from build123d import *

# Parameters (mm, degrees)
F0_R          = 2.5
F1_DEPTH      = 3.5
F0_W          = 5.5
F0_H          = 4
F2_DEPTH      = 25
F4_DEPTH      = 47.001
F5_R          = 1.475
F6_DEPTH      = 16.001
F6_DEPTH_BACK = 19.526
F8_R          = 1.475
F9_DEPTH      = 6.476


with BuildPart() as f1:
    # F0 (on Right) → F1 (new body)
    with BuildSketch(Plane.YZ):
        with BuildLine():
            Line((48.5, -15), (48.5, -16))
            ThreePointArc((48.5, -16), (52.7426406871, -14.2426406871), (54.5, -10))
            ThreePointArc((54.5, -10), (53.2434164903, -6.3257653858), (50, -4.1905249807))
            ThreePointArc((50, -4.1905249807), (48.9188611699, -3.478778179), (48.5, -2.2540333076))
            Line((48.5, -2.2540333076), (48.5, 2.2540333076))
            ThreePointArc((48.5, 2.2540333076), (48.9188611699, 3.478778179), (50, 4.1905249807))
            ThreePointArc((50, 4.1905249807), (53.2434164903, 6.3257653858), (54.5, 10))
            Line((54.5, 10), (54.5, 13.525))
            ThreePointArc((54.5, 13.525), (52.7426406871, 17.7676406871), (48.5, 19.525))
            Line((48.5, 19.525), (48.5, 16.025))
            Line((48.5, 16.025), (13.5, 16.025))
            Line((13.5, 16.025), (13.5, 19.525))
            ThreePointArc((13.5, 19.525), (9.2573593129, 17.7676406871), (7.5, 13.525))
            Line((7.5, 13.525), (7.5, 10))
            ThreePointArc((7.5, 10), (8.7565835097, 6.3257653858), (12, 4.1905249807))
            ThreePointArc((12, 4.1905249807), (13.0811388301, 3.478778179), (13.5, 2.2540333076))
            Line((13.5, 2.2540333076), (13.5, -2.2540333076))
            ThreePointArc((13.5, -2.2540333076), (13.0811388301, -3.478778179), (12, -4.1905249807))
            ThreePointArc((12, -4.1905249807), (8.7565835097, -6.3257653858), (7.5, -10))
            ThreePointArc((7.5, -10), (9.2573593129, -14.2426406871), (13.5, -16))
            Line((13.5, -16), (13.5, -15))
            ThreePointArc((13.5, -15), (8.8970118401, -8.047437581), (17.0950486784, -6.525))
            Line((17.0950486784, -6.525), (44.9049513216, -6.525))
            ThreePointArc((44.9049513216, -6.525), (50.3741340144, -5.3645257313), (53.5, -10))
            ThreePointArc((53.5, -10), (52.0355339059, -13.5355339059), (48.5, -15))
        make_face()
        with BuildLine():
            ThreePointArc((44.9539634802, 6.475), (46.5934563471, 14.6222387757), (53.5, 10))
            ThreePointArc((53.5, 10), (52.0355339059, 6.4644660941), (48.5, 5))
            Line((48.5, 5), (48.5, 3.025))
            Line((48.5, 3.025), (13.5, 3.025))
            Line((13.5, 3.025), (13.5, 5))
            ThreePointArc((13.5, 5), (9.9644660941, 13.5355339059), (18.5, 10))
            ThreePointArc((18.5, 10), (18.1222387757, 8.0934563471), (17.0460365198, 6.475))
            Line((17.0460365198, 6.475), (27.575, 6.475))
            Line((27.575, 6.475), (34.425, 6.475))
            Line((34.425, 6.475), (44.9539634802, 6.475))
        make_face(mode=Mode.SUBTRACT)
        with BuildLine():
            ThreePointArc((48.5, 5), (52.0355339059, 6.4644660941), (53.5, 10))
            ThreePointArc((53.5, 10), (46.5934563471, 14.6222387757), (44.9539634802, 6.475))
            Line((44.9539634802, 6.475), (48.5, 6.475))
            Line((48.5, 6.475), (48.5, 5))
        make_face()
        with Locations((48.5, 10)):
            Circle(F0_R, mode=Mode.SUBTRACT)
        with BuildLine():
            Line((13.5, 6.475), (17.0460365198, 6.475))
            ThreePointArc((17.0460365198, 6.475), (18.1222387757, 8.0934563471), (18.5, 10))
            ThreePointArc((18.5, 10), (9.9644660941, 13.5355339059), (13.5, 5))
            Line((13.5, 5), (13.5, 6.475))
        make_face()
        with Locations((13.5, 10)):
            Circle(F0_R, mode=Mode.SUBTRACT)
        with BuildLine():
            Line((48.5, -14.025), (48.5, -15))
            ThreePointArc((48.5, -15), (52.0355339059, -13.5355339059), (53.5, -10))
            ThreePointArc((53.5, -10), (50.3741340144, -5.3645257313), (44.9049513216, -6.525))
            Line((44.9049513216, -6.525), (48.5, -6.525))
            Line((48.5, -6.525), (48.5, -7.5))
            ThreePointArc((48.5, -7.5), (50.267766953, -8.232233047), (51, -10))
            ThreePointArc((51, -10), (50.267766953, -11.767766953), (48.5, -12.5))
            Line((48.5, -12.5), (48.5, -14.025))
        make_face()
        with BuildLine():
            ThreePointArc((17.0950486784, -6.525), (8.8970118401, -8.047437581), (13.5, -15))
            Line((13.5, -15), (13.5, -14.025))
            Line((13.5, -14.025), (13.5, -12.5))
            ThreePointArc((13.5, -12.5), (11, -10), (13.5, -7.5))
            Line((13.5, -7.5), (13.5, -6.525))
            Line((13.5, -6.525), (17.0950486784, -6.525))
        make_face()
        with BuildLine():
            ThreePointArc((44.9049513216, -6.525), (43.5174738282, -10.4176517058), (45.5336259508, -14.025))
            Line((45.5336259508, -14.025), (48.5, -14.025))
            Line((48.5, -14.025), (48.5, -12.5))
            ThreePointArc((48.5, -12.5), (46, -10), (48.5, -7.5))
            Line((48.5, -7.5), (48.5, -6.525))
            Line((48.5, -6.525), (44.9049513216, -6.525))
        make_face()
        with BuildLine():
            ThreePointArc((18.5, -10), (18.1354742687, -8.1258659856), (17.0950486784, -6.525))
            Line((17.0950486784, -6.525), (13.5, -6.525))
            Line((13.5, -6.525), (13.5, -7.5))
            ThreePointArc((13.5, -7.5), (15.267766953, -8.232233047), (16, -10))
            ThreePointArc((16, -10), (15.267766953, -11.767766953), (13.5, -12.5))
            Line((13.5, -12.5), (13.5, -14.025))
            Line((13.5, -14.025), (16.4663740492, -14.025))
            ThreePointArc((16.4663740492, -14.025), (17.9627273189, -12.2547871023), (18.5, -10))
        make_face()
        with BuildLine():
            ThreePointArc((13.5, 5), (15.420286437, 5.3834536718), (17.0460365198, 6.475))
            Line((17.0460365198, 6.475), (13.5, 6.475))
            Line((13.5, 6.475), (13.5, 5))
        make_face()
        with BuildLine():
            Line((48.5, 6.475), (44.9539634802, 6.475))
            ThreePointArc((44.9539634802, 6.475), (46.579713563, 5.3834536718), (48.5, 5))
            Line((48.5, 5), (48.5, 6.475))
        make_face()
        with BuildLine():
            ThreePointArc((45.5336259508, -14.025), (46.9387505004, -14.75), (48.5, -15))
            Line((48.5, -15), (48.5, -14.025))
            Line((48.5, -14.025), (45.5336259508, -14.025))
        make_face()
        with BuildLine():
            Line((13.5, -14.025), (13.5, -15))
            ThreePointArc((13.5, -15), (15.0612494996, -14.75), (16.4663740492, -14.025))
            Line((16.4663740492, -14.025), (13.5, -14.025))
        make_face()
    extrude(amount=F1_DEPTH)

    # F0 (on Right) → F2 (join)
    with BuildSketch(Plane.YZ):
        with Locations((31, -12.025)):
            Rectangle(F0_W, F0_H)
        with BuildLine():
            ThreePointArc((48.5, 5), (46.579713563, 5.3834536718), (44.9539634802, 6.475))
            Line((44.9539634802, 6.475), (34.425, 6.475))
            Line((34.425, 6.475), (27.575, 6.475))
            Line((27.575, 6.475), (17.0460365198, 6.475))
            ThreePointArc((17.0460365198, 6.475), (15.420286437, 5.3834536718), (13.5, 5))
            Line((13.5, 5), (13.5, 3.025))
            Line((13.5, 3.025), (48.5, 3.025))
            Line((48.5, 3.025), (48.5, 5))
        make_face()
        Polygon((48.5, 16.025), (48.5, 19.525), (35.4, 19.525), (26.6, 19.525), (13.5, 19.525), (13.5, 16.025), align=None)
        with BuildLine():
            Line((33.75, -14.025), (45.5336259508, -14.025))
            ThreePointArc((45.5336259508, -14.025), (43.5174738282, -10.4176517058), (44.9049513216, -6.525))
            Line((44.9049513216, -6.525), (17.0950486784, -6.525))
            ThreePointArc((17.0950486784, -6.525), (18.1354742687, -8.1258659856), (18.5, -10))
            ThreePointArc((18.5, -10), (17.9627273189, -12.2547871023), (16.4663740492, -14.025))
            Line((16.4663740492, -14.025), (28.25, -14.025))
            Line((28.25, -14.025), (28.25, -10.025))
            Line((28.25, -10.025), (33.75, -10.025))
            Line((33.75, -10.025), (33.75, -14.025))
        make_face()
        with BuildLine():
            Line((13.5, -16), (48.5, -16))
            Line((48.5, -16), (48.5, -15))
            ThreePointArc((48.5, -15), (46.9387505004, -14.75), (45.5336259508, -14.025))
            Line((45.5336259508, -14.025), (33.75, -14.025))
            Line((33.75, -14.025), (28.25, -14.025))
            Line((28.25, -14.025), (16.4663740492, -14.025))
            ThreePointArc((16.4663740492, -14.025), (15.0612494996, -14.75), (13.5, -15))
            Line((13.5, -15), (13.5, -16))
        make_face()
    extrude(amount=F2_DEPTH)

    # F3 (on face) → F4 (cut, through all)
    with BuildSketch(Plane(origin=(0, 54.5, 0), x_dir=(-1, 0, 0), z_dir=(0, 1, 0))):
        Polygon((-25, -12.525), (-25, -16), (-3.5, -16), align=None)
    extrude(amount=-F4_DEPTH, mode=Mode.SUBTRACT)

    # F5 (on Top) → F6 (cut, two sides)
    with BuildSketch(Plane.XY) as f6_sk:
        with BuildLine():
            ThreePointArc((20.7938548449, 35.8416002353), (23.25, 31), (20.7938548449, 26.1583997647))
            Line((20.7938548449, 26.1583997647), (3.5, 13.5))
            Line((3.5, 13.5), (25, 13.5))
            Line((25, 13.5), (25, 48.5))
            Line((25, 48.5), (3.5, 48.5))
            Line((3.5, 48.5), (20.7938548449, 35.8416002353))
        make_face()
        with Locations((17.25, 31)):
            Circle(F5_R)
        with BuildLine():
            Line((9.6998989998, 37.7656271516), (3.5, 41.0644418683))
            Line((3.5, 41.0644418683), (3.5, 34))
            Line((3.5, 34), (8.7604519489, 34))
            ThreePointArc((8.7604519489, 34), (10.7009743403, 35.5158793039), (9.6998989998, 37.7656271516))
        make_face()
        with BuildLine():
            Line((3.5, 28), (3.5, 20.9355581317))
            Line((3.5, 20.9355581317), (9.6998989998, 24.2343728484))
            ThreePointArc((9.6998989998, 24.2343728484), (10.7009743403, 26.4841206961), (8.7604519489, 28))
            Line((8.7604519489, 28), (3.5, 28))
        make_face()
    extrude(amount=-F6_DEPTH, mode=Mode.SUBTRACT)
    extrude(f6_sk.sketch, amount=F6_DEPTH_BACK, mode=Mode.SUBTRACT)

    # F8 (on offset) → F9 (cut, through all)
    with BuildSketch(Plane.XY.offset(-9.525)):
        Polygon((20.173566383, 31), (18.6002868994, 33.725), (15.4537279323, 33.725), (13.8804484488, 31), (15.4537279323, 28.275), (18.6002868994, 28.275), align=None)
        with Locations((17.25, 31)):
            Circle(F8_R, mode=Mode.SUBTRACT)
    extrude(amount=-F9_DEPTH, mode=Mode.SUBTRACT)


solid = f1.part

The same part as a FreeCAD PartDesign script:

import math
import FreeCAD as App
import Part
import Sketcher
Q = App.Units.Quantity


def add_polygon(sketch, points):
    """Adds a closed chain of lines whose ends are joined by coincident constraints."""
    first, n = sketch.GeometryCount, len(points)
    for a, b in zip(points, points[1:] + points[:1]):
        sketch.addGeometry(Part.LineSegment(App.Vector(*a, 0), App.Vector(*b, 0)), False)
    for i in range(n):
        sketch.addConstraint(Sketcher.Constraint("Coincident", first + i, 2, first + (i + 1) % n, 1))

doc = App.newDocument("Part")
params = doc.addObject("Spreadsheet::Sheet", "Params")
for row, (alias, value) in enumerate([
    ("sketch1_diameter", "5 mm"),
    ("sketch1_radius", "6 mm"),
    ("sketch1_radius2", "2 mm"),
    ("sketch1_radius3", "5 mm"),
    ("sketch1_width", "35 mm"),
    ("pad1_length", "3.5 mm"),
    ("sketch2_radius", "5 mm"),
    ("sketch2_width", "35 mm"),
    ("sketch2_height", "1 mm"),
    ("sketch2_height2", "3.5 mm"),
    ("pad2_length", "25 mm"),
    ("sketch3_width", "21.5 mm"),
    ("sketch4_radius", "6 mm"),
    ("sketch4_radius2", "2 mm"),
    ("sketch4_diameter", "2.95 mm"),
    ("sketch4_height", "35 mm"),
    ("sketch4_width", "21.5 mm"),
    ("sketch5_diameter", "2.95 mm"),
], start=1):
    params.set(f"A{row}", alias)
    params.set(f"B{row}", "=" + value)
    params.setAlias(f"B{row}", alias)

body = doc.addObject("PartDesign::Body", "Body")

# Sketch on YZ plane
sketch1 = body.newObject("Sketcher::SketchObject", "Sketch")
sketch1.AttachmentSupport = (doc.getObject("YZ_Plane"), [""])
sketch1.MapMode = "FlatFace"
sketch1.addGeometry(Part.LineSegment(App.Vector(48.5, -15, 0), App.Vector(48.5, -16, 0)), False)
sketch1.addGeometry(Part.ArcOfCircle(Part.Circle(App.Vector(48.5, -10, 0), App.Vector(0, 0, 1), 6), math.radians(-90), math.radians(0)), False)
sketch1.addGeometry(Part.ArcOfCircle(Part.Circle(App.Vector(48.5, -10, 0), App.Vector(0, 0, 1), 6), math.radians(0), math.radians(75.522488)), False)
sketch1.addGeometry(Part.ArcOfCircle(Part.Circle(App.Vector(50.5, -2.254033, 0), App.Vector(0, 0, 1), 2), math.radians(180), math.radians(255.522488)), False)
sketch1.addGeometry(Part.LineSegment(App.Vector(48.5, -2.254033, 0), App.Vector(48.5, 2.254033, 0)), False)
sketch1.addGeometry(Part.ArcOfCircle(Part.Circle(App.Vector(50.5, 2.254033, 0), App.Vector(0, 0, 1), 2), math.radians(104.477512), math.radians(180)), False)
sketch1.addGeometry(Part.ArcOfCircle(Part.Circle(App.Vector(48.5, 10, 0), App.Vector(0, 0, 1), 6), math.radians(-75.522488), math.radians(0)), False)
sketch1.addGeometry(Part.LineSegment(App.Vector(54.5, 10, 0), App.Vector(54.5, 13.525, 0)), False)
sketch1.addGeometry(Part.ArcOfCircle(Part.Circle(App.Vector(48.5, 13.525, 0), App.Vector(0, 0, 1), 6), math.radians(0), math.radians(90)), False)
sketch1.addGeometry(Part.LineSegment(App.Vector(48.5, 19.525, 0), App.Vector(48.5, 16.025, 0)), False)
sketch1.addGeometry(Part.LineSegment(App.Vector(48.5, 16.025, 0), App.Vector(13.5, 16.025, 0)), False)
sketch1.addGeometry(Part.LineSegment(App.Vector(13.5, 16.025, 0), App.Vector(13.5, 19.525, 0)), False)
sketch1.addGeometry(Part.ArcOfCircle(Part.Circle(App.Vector(13.5, 13.525, 0), App.Vector(0, 0, 1), 6), math.radians(90), math.radians(180)), False)
sketch1.addGeometry(Part.LineSegment(App.Vector(7.5, 13.525, 0), App.Vector(7.5, 10, 0)), False)
sketch1.addGeometry(Part.ArcOfCircle(Part.Circle(App.Vector(13.5, 10, 0), App.Vector(0, 0, 1), 6), math.radians(180), math.radians(255.522488)), False)
sketch1.addGeometry(Part.ArcOfCircle(Part.Circle(App.Vector(11.5, 2.254033, 0), App.Vector(0, 0, 1), 2), math.radians(0), math.radians(75.522488)), False)
sketch1.addGeometry(Part.LineSegment(App.Vector(13.5, 2.254033, 0), App.Vector(13.5, -2.254033, 0)), False)
sketch1.addGeometry(Part.ArcOfCircle(Part.Circle(App.Vector(11.5, -2.254033, 0), App.Vector(0, 0, 1), 2), math.radians(-75.522488), math.radians(0)), False)
sketch1.addGeometry(Part.ArcOfCircle(Part.Circle(App.Vector(13.5, -10, 0), App.Vector(0, 0, 1), 6), math.radians(104.477512), math.radians(180)), False)
sketch1.addGeometry(Part.ArcOfCircle(Part.Circle(App.Vector(13.5, -10, 0), App.Vector(0, 0, 1), 6), math.radians(180), math.radians(270)), False)
sketch1.addGeometry(Part.LineSegment(App.Vector(13.5, -16, 0), App.Vector(13.5, -15, 0)), False)
sketch1.addGeometry(Part.ArcOfCircle(Part.Circle(App.Vector(13.5, -10, 0), App.Vector(0, 0, 1), 5), math.radians(-90), math.radians(-53.610255)), False)
sketch1.addGeometry(Part.ArcOfCircle(Part.Circle(App.Vector(13.5, -10, 0), App.Vector(0, 0, 1), 5), math.radians(-53.610255), math.radians(0)), False)
sketch1.addGeometry(Part.ArcOfCircle(Part.Circle(App.Vector(13.5, -10, 0), App.Vector(0, 0, 1), 5), math.radians(0), math.radians(44.027217)), False)
sketch1.addGeometry(Part.LineSegment(App.Vector(17.095049, -6.525, 0), App.Vector(44.904951, -6.525, 0)), False)
sketch1.addGeometry(Part.ArcOfCircle(Part.Circle(App.Vector(48.5, -10, 0), App.Vector(0, 0, 1), 5), math.radians(135.972783), math.radians(233.610255)), False)
sketch1.addGeometry(Part.ArcOfCircle(Part.Circle(App.Vector(48.5, -10, 0), App.Vector(0, 0, 1), 5), math.radians(-126.389745), math.radians(-90)), False)
sketch1.addGeometry(Part.ArcOfCircle(Part.Circle(App.Vector(13.5, -10, 0), App.Vector(0, 0, 1), 2.5), math.radians(90), math.radians(270)), False)
sketch1.addGeometry(Part.ArcOfCircle(Part.Circle(App.Vector(13.5, -10, 0), App.Vector(0, 0, 1), 2.5), math.radians(0), math.radians(90)), False)
sketch1.addGeometry(Part.ArcOfCircle(Part.Circle(App.Vector(13.5, -10, 0), App.Vector(0, 0, 1), 2.5), math.radians(-90), math.radians(0)), False)
sketch1.addGeometry(Part.ArcOfCircle(Part.Circle(App.Vector(48.5, -10, 0), App.Vector(0, 0, 1), 2.5), math.radians(0), math.radians(90)), False)
sketch1.addGeometry(Part.ArcOfCircle(Part.Circle(App.Vector(48.5, -10, 0), App.Vector(0, 0, 1), 2.5), math.radians(-90), math.radians(0)), False)
sketch1.addGeometry(Part.ArcOfCircle(Part.Circle(App.Vector(48.5, -10, 0), App.Vector(0, 0, 1), 2.5), math.radians(90), math.radians(270)), False)
sketch1.addGeometry(Part.LineSegment(App.Vector(48.5, 5, 0), App.Vector(48.5, 3.025, 0)), False)
sketch1.addGeometry(Part.LineSegment(App.Vector(48.5, 3.025, 0), App.Vector(13.5, 3.025, 0)), False)
sketch1.addGeometry(Part.LineSegment(App.Vector(13.5, 3.025, 0), App.Vector(13.5, 5, 0)), False)
sketch1.addGeometry(Part.ArcOfCircle(Part.Circle(App.Vector(13.5, 10, 0), App.Vector(0, 0, 1), 5), math.radians(-90), math.radians(-44.829544)), False)
sketch1.addGeometry(Part.LineSegment(App.Vector(17.046037, 6.475, 0), App.Vector(44.953963, 6.475, 0)), False)
sketch1.addGeometry(Part.ArcOfCircle(Part.Circle(App.Vector(48.5, 10, 0), App.Vector(0, 0, 1), 5), math.radians(-135.170456), math.radians(-90)), False)
sketch1.addGeometry(Part.Circle(App.Vector(13.5, 10, 0), App.Vector(0, 0, 1), 2.5), False)
sketch1.addGeometry(Part.Circle(App.Vector(48.5, 10, 0), App.Vector(0, 0, 1), 2.5), False)
sketch1.addConstraint(Sketcher.Constraint("Coincident", 0, 2, 1, 1))
sketch1.addConstraint(Sketcher.Constraint("Tangent", 1, 2, 2, 1))
sketch1.addConstraint(Sketcher.Constraint("Tangent", 2, 2, 3, 2))
sketch1.addConstraint(Sketcher.Constraint("Tangent", 3, 1, 4, 1))
sketch1.addConstraint(Sketcher.Constraint("Tangent", 4, 2, 5, 2))
sketch1.addConstraint(Sketcher.Constraint("Tangent", 5, 1, 6, 1))
sketch1.addConstraint(Sketcher.Constraint("Tangent", 6, 2, 7, 1))
sketch1.addConstraint(Sketcher.Constraint("Tangent", 7, 2, 8, 1))
sketch1.addConstraint(Sketcher.Constraint("Coincident", 8, 2, 9, 1))
sketch1.addConstraint(Sketcher.Constraint("Coincident", 9, 2, 10, 1))
sketch1.addConstraint(Sketcher.Constraint("Coincident", 10, 2, 11, 1))
sketch1.addConstraint(Sketcher.Constraint("Coincident", 11, 2, 12, 1))
sketch1.addConstraint(Sketcher.Constraint("Tangent", 12, 2, 13, 1))
sketch1.addConstraint(Sketcher.Constraint("Tangent", 13, 2, 14, 1))
sketch1.addConstraint(Sketcher.Constraint("Tangent", 14, 2, 15, 2))
sketch1.addConstraint(Sketcher.Constraint("Tangent", 15, 1, 16, 1))
sketch1.addConstraint(Sketcher.Constraint("Tangent", 16, 2, 17, 2))
sketch1.addConstraint(Sketcher.Constraint("Tangent", 17, 1, 18, 1))
sketch1.addConstraint(Sketcher.Constraint("Tangent", 18, 2, 19, 1))
sketch1.addConstraint(Sketcher.Constraint("Coincident", 19, 2, 20, 1))
sketch1.addConstraint(Sketcher.Constraint("Coincident", 20, 2, 21, 1))
sketch1.addConstraint(Sketcher.Constraint("Tangent", 21, 2, 22, 1))
sketch1.addConstraint(Sketcher.Constraint("Tangent", 22, 2, 23, 1))
sketch1.addConstraint(Sketcher.Constraint("Coincident", 23, 2, 24, 1))
sketch1.addConstraint(Sketcher.Constraint("Coincident", 24, 2, 25, 1))
sketch1.addConstraint(Sketcher.Constraint("Tangent", 25, 2, 26, 1))
sketch1.addConstraint(Sketcher.Constraint("Coincident", 26, 2, 0, 1))
sketch1.addConstraint(Sketcher.Constraint("Tangent", 27, 1, 28, 2))
sketch1.addConstraint(Sketcher.Constraint("Tangent", 28, 1, 29, 2))
sketch1.addConstraint(Sketcher.Constraint("Tangent", 29, 1, 27, 2))
sketch1.addConstraint(Sketcher.Constraint("Tangent", 30, 1, 31, 2))
sketch1.addConstraint(Sketcher.Constraint("Tangent", 31, 1, 32, 2))
sketch1.addConstraint(Sketcher.Constraint("Tangent", 32, 1, 30, 2))
sketch1.addConstraint(Sketcher.Constraint("Coincident", 33, 2, 34, 1))
sketch1.addConstraint(Sketcher.Constraint("Coincident", 34, 2, 35, 1))
sketch1.addConstraint(Sketcher.Constraint("Coincident", 35, 2, 36, 1))
sketch1.addConstraint(Sketcher.Constraint("Coincident", 36, 2, 37, 1))
sketch1.addConstraint(Sketcher.Constraint("Coincident", 37, 2, 38, 1))
sketch1.addConstraint(Sketcher.Constraint("Coincident", 38, 2, 33, 1))
sketch1.addConstraint(Sketcher.Constraint("Vertical", 0))
sketch1.addConstraint(Sketcher.Constraint("Vertical", 4))
sketch1.addConstraint(Sketcher.Constraint("Vertical", 7))
sketch1.addConstraint(Sketcher.Constraint("Vertical", 9))
sketch1.addConstraint(Sketcher.Constraint("Horizontal", 10))
sketch1.addConstraint(Sketcher.Constraint("Vertical", 11))
sketch1.addConstraint(Sketcher.Constraint("Vertical", 13))
sketch1.addConstraint(Sketcher.Constraint("Vertical", 16))
sketch1.addConstraint(Sketcher.Constraint("Vertical", 20))
sketch1.addConstraint(Sketcher.Constraint("Horizontal", 24))
sketch1.addConstraint(Sketcher.Constraint("Vertical", 33))
sketch1.addConstraint(Sketcher.Constraint("Horizontal", 34))
sketch1.addConstraint(Sketcher.Constraint("Vertical", 35))
sketch1.addConstraint(Sketcher.Constraint("Horizontal", 37))
sketch1.addConstraint(Sketcher.Constraint("Coincident", 21, 3, 18, 3))
sketch1.addConstraint(Sketcher.Constraint("Coincident", 23, 3, 18, 3))
sketch1.addConstraint(Sketcher.Constraint("Coincident", 25, 3, 1, 3))
sketch1.addConstraint(Sketcher.Constraint("Coincident", 27, 3, 18, 3))
sketch1.addConstraint(Sketcher.Constraint("Coincident", 30, 3, 1, 3))
sketch1.addConstraint(Sketcher.Constraint("Coincident", 36, 3, 14, 3))
sketch1.addConstraint(Sketcher.Constraint("Coincident", 38, 3, 6, 3))
sketch1.addConstraint(Sketcher.Constraint("Coincident", 39, 3, 14, 3))
sketch1.addConstraint(Sketcher.Constraint("Coincident", 40, 3, 6, 3))
sketch1.addConstraint(Sketcher.Constraint("Equal", 1, 2))
sketch1.addConstraint(Sketcher.Constraint("Equal", 3, 5))
sketch1.addConstraint(Sketcher.Constraint("Equal", 2, 6))
sketch1.addConstraint(Sketcher.Constraint("Equal", 6, 8))
sketch1.addConstraint(Sketcher.Constraint("Equal", 8, 12))
sketch1.addConstraint(Sketcher.Constraint("Equal", 12, 14))
sketch1.addConstraint(Sketcher.Constraint("Equal", 5, 15))
sketch1.addConstraint(Sketcher.Constraint("Equal", 15, 17))
sketch1.addConstraint(Sketcher.Constraint("Equal", 14, 18))
sketch1.addConstraint(Sketcher.Constraint("Equal", 18, 19))
sketch1.addConstraint(Sketcher.Constraint("Equal", 23, 25))
sketch1.addConstraint(Sketcher.Constraint("Equal", 25, 26))
sketch1.addConstraint(Sketcher.Constraint("Equal", 29, 30))
sketch1.addConstraint(Sketcher.Constraint("Equal", 26, 36))
sketch1.addConstraint(Sketcher.Constraint("Equal", 36, 38))
sketch1.addConstraint(Sketcher.Constraint("Equal", 32, 39))
sketch1.addConstraint(Sketcher.Constraint("Equal", 39, 40))
sketch1.addConstraint(Sketcher.Constraint("Symmetric", 1, 3, 6, 3, -1))
sketch1.addConstraint(Sketcher.Constraint("Symmetric", 14, 3, 18, 3, -1))
sketch1.addConstraint(Sketcher.Constraint("Horizontal", 8, 3, 12, 3))
sketch1.addConstraint(Sketcher.Constraint("Horizontal", 6, 3, 14, 3))
sketch1.addConstraint(Sketcher.Constraint("Horizontal", 5, 3, 15, 3))
sketch1.addConstraint(Sketcher.Constraint("Horizontal", 32, 3, 1, 2))
sketch1.addConstraint(Sketcher.Constraint("Horizontal", 1, 2, 18, 2))
sketch1.addConstraint(Sketcher.Constraint("Horizontal", 18, 2, 22, 2))
sketch1.addConstraint(Sketcher.Constraint("Horizontal", 21, 2, 25, 2))
sketch1.addConstraint(Sketcher.Constraint("Horizontal", 22, 2, 28, 1))
sketch1.addConstraint(Sketcher.Constraint("Horizontal", 28, 1, 30, 1))
sketch1.addConstraint(Sketcher.Constraint("Vertical", 40, 3, 0, 2))
sketch1.addConstraint(Sketcher.Constraint("Vertical", 0, 2, 3, 1))
sketch1.addConstraint(Sketcher.Constraint("Vertical", 4, 2, 8, 2))
sketch1.addConstraint(Sketcher.Constraint("Vertical", 39, 3, 10, 2))
sketch1.addConstraint(Sketcher.Constraint("Vertical", 16, 2, 19, 2))
sketch1.addConstraint(Sketcher.Constraint("Vertical", 20, 2, 27, 1))
sketch1.addConstraint(Sketcher.Constraint("Vertical", 27, 1, 29, 1))
sketch1.addConstraint(Sketcher.Constraint("Vertical", 26, 2, 31, 1))
sketch1.addConstraint(Sketcher.Constraint("Vertical", 31, 1, 32, 1))
sketch1.addConstraint(Sketcher.Constraint("Vertical", 32, 1, 33, 2))
sketch1.addConstraint(Sketcher.Constraint("Vertical", 29, 1, 34, 2))
sketch1.addConstraint(Sketcher.Constraint("Diameter", 39, Q("5 mm")))
sketch1.addConstraint(Sketcher.Constraint("Radius", 1, Q("6 mm")))
sketch1.addConstraint(Sketcher.Constraint("Radius", 3, Q("2 mm")))
sketch1.addConstraint(Sketcher.Constraint("Radius", 21, Q("5 mm")))
sketch1.addConstraint(Sketcher.Constraint("DistanceX", 10, 2, 10, 1, Q("35 mm")))
sketch1.addConstraint(Sketcher.Constraint("DistanceY", 9, 2, 9, 1, Q("3.5 mm")))
sketch1.addConstraint(Sketcher.Constraint("DistanceY", 1, 3, -1, 1, Q("10 mm")))
sketch1.addConstraint(Sketcher.Constraint("DistanceX", -1, 1, 2, 2, Q("50 mm")))
sketch1.addConstraint(Sketcher.Constraint("DistanceY", 7, 1, 7, 2, Q("3.525 mm")))
sketch1.addConstraint(Sketcher.Constraint("DistanceY", 33, 2, 33, 1, Q("1.975 mm")))
sketch1.addConstraint(Sketcher.Constraint("DistanceY", 21, 2, -1, 1, Q("14.025 mm")))
sketch1.addConstraint(Sketcher.Constraint("DistanceY", 23, 2, -1, 1, Q("6.525 mm")))
sketch1.addConstraint(Sketcher.Constraint("DistanceY", -1, 1, 36, 2, Q("6.475 mm")))
sketch1.setExpression("Constraints[101]", "Params.sketch1_diameter")
sketch1.setExpression("Constraints[102]", "Params.sketch1_radius")
sketch1.setExpression("Constraints[103]", "Params.sketch1_radius2")
sketch1.setExpression("Constraints[104]", "Params.sketch1_radius3")
sketch1.setExpression("Constraints[105]", "Params.sketch1_width")
pad1 = body.newObject("PartDesign::Pad", "Pad")
pad1.Profile = sketch1
pad1.setExpression("Length", "Params.pad1_length")

# Sketch on YZ plane
sketch2 = body.newObject("Sketcher::SketchObject", "Sketch001")
sketch2.AttachmentSupport = (doc.getObject("YZ_Plane"), [""])
sketch2.MapMode = "FlatFace"
sketch2.addGeometry(Part.ArcOfCircle(Part.Circle(App.Vector(48.5, -10, 0), App.Vector(0, 0, 1), 5), math.radians(135.972783), math.radians(233.610255)), False)  # 0
sketch2.addGeometry(Part.LineSegment(App.Vector(44.904951, -6.525, 0), App.Vector(17.095049, -6.525, 0)), False)  # 1
sketch2.addGeometry(Part.ArcOfCircle(Part.Circle(App.Vector(13.5, -10, 0), App.Vector(0, 0, 1), 5), math.radians(0), math.radians(44.027217)), False)  # 2
sketch2.addGeometry(Part.ArcOfCircle(Part.Circle(App.Vector(13.5, -10, 0), App.Vector(0, 0, 1), 5), math.radians(-53.610255), math.radians(0)), False)  # 3
sketch2.addGeometry(Part.ArcOfCircle(Part.Circle(App.Vector(13.5, -10, 0), App.Vector(0, 0, 1), 5), math.radians(-90), math.radians(-53.610255)), False)  # 4
sketch2.addGeometry(Part.LineSegment(App.Vector(13.5, -15, 0), App.Vector(13.5, -16, 0)), False)  # 5
sketch2.addGeometry(Part.LineSegment(App.Vector(13.5, -16, 0), App.Vector(48.5, -16, 0)), False)  # 6
sketch2.addGeometry(Part.LineSegment(App.Vector(48.5, -16, 0), App.Vector(48.5, -15, 0)), False)  # 7
sketch2.addGeometry(Part.ArcOfCircle(Part.Circle(App.Vector(48.5, -10, 0), App.Vector(0, 0, 1), 5), math.radians(-126.389745), math.radians(-90)), False)  # 8
sketch2.addGeometry(Part.ArcOfCircle(Part.Circle(App.Vector(48.5, 10, 0), App.Vector(0, 0, 1), 5), math.radians(-135.170456), math.radians(-90)), False)  # 9
sketch2.addGeometry(Part.LineSegment(App.Vector(44.953963, 6.475, 0), App.Vector(17.046037, 6.475, 0)), False)  # 10
sketch2.addGeometry(Part.ArcOfCircle(Part.Circle(App.Vector(13.5, 10, 0), App.Vector(0, 0, 1), 5), math.radians(-90), math.radians(-44.829544)), False)  # 11
sketch2.addGeometry(Part.LineSegment(App.Vector(13.5, 5, 0), App.Vector(13.5, 3.025, 0)), False)  # 12
sketch2.addGeometry(Part.LineSegment(App.Vector(13.5, 3.025, 0), App.Vector(48.5, 3.025, 0)), False)  # 13
sketch2.addGeometry(Part.LineSegment(App.Vector(48.5, 3.025, 0), App.Vector(48.5, 5, 0)), False)  # 14
add_polygon(sketch2, [(48.5, 16.025), (48.5, 19.525), (13.5, 19.525), (13.5, 16.025)])  # lines 15-18
sketch2.addConstraint(Sketcher.Constraint("Coincident", 0, 1, 1, 1))
sketch2.addConstraint(Sketcher.Constraint("Coincident", 1, 2, 2, 2))
sketch2.addConstraint(Sketcher.Constraint("Tangent", 2, 1, 3, 2))
sketch2.addConstraint(Sketcher.Constraint("Tangent", 3, 1, 4, 2))
sketch2.addConstraint(Sketcher.Constraint("Coincident", 4, 1, 5, 1))
sketch2.addConstraint(Sketcher.Constraint("Coincident", 5, 2, 6, 1))
sketch2.addConstraint(Sketcher.Constraint("Coincident", 6, 2, 7, 1))
sketch2.addConstraint(Sketcher.Constraint("Coincident", 7, 2, 8, 2))
sketch2.addConstraint(Sketcher.Constraint("Tangent", 8, 1, 0, 2))
sketch2.addConstraint(Sketcher.Constraint("Coincident", 9, 1, 10, 1))
sketch2.addConstraint(Sketcher.Constraint("Coincident", 10, 2, 11, 2))
sketch2.addConstraint(Sketcher.Constraint("Coincident", 11, 1, 12, 1))
sketch2.addConstraint(Sketcher.Constraint("Coincident", 12, 2, 13, 1))
sketch2.addConstraint(Sketcher.Constraint("Coincident", 13, 2, 14, 1))
sketch2.addConstraint(Sketcher.Constraint("Coincident", 14, 2, 9, 2))
sketch2.addConstraint(Sketcher.Constraint("Horizontal", 1))
sketch2.addConstraint(Sketcher.Constraint("Vertical", 5))
sketch2.addConstraint(Sketcher.Constraint("Horizontal", 6))
sketch2.addConstraint(Sketcher.Constraint("Vertical", 7))
sketch2.addConstraint(Sketcher.Constraint("Horizontal", 10))
sketch2.addConstraint(Sketcher.Constraint("Vertical", 12))
sketch2.addConstraint(Sketcher.Constraint("Horizontal", 13))
sketch2.addConstraint(Sketcher.Constraint("Vertical", 14))
sketch2.addConstraint(Sketcher.Constraint("Vertical", 15))
sketch2.addConstraint(Sketcher.Constraint("Horizontal", 16))
sketch2.addConstraint(Sketcher.Constraint("Vertical", 17))
sketch2.addConstraint(Sketcher.Constraint("Horizontal", 18))
sketch2.addConstraint(Sketcher.Constraint("Coincident", 4, 3, 2, 3))
sketch2.addConstraint(Sketcher.Constraint("Equal", 0, 2))
sketch2.addConstraint(Sketcher.Constraint("Equal", 4, 8))
sketch2.addConstraint(Sketcher.Constraint("Equal", 8, 9))
sketch2.addConstraint(Sketcher.Constraint("Equal", 9, 11))
sketch2.addConstraint(Sketcher.Constraint("Symmetric", 0, 3, 9, 3, -1))
sketch2.addConstraint(Sketcher.Constraint("Symmetric", 2, 3, 11, 3, -1))
sketch2.addConstraint(Sketcher.Constraint("Horizontal", 0, 3, 2, 3))
sketch2.addConstraint(Sketcher.Constraint("Horizontal", 8, 3, 2, 1))
sketch2.addConstraint(Sketcher.Constraint("Horizontal", 3, 1, 8, 1))
sketch2.addConstraint(Sketcher.Constraint("Vertical", 11, 3, 4, 1))
sketch2.addConstraint(Sketcher.Constraint("Vertical", 9, 3, 6, 2))
sketch2.addConstraint(Sketcher.Constraint("Vertical", 5, 2, 11, 1))
sketch2.addConstraint(Sketcher.Constraint("Vertical", 7, 2, 13, 2))
sketch2.addConstraint(Sketcher.Constraint("Vertical", 14, 2, 15, 2))
sketch2.addConstraint(Sketcher.Constraint("Vertical", 12, 2, 16, 2))
sketch2.addConstraint(Sketcher.Constraint("Radius", 0, Q("5 mm")))
sketch2.addConstraint(Sketcher.Constraint("DistanceX", 6, 1, 6, 2, Q("35 mm")))
sketch2.addConstraint(Sketcher.Constraint("DistanceY", 5, 2, 5, 1, Q("1 mm")))
sketch2.addConstraint(Sketcher.Constraint("DistanceY", 15, 1, 15, 2, Q("3.5 mm")))
sketch2.addConstraint(Sketcher.Constraint("DistanceY", 0, 3, -1, 1, Q("10 mm")))
sketch2.addConstraint(Sketcher.Constraint("DistanceY", 0, 1, 9, 1, Q("13 mm")))
sketch2.addConstraint(Sketcher.Constraint("DistanceY", 12, 2, 17, 2, Q("13 mm")))
sketch2.addConstraint(Sketcher.Constraint("DistanceX", -1, 1, 0, 3, Q("48.5 mm")))
sketch2.addConstraint(Sketcher.Constraint("DistanceY", 3, 1, 1, 2, Q("7.5 mm")))
sketch2.addConstraint(Sketcher.Constraint("DistanceY", 12, 2, 12, 1, Q("1.975 mm")))
sketch2.addConstraint(Sketcher.Constraint("DistanceY", 12, 2, 10, 2, Q("3.45 mm")))
sketch2.setExpression("Constraints[47]", "Params.sketch2_radius")
sketch2.setExpression("Constraints[48]", "Params.sketch2_width")
sketch2.setExpression("Constraints[49]", "Params.sketch2_height")
sketch2.setExpression("Constraints[50]", "Params.sketch2_height2")
pad2 = body.newObject("PartDesign::Pad", "Pad001")
pad2.Profile = sketch2
pad2.setExpression("Length", "Params.pad2_length")

# Sketch on XZ plane
sketch3 = body.newObject("Sketcher::SketchObject", "Sketch002")
sketch3.AttachmentSupport = (doc.getObject("XZ_Plane"), [""])
sketch3.MapMode = "FlatFace"
sketch3.AttachmentOffset = App.Placement(App.Vector(0, 0, -54.5), App.Rotation())
add_polygon(sketch3, [(25, -12.525), (25, -16), (3.5, -16)])  # lines 0-2
sketch3.addConstraint(Sketcher.Constraint("Vertical", 0))
sketch3.addConstraint(Sketcher.Constraint("Horizontal", 1))
sketch3.addConstraint(Sketcher.Constraint("DistanceX", 1, 2, 1, 1, Q("21.5 mm")))
sketch3.addConstraint(Sketcher.Constraint("DistanceX", -1, 1, 0, 2, Q("25 mm")))
sketch3.addConstraint(Sketcher.Constraint("DistanceY", 0, 2, -1, 1, Q("16 mm")))
sketch3.addConstraint(Sketcher.Constraint("DistanceY", 0, 2, 0, 1, Q("3.475 mm")))
sketch3.setExpression("Constraints[5]", "Params.sketch3_width")
pocket1 = body.newObject("PartDesign::Pocket", "Pocket")
pocket1.Profile = sketch3
pocket1.Type = "ThroughAll"
pocket1.Reversed = True

# Sketch on XY plane
sketch4 = body.newObject("Sketcher::SketchObject", "Sketch003")
sketch4.AttachmentSupport = (doc.getObject("XY_Plane"), [""])
sketch4.MapMode = "FlatFace"
sketch4.addGeometry(Part.ArcOfCircle(Part.Circle(App.Vector(17.25, 31, 0), App.Vector(0, 0, 1), 6), math.radians(-53.797387), math.radians(53.797387)), False)
sketch4.addGeometry(Part.LineSegment(App.Vector(20.793855, 26.1584, 0), App.Vector(3.5, 13.5, 0)), False)
sketch4.addGeometry(Part.LineSegment(App.Vector(3.5, 13.5, 0), App.Vector(25, 13.5, 0)), False)
sketch4.addGeometry(Part.LineSegment(App.Vector(25, 13.5, 0), App.Vector(25, 48.5, 0)), False)
sketch4.addGeometry(Part.LineSegment(App.Vector(25, 48.5, 0), App.Vector(3.5, 48.5, 0)), False)
sketch4.addGeometry(Part.LineSegment(App.Vector(3.5, 48.5, 0), App.Vector(20.793855, 35.8416, 0)), False)
sketch4.addGeometry(Part.Circle(App.Vector(17.25, 31, 0), App.Vector(0, 0, 1), 1.475), False)
sketch4.addGeometry(Part.LineSegment(App.Vector(9.699899, 37.765627, 0), App.Vector(3.5, 41.064442, 0)), False)
sketch4.addGeometry(Part.LineSegment(App.Vector(3.5, 41.064442, 0), App.Vector(3.5, 34, 0)), False)
sketch4.addGeometry(Part.LineSegment(App.Vector(3.5, 34, 0), App.Vector(8.760452, 34, 0)), False)
sketch4.addGeometry(Part.ArcOfCircle(Part.Circle(App.Vector(8.760452, 36, 0), App.Vector(0, 0, 1), 2), math.radians(-90), math.radians(61.983649)), False)
sketch4.addGeometry(Part.LineSegment(App.Vector(3.5, 28, 0), App.Vector(3.5, 20.935558, 0)), False)
sketch4.addGeometry(Part.LineSegment(App.Vector(3.5, 20.935558, 0), App.Vector(9.699899, 24.234373, 0)), False)
sketch4.addGeometry(Part.ArcOfCircle(Part.Circle(App.Vector(8.760452, 26, 0), App.Vector(0, 0, 1), 2), math.radians(-61.983649), math.radians(90)), False)
sketch4.addGeometry(Part.LineSegment(App.Vector(8.760452, 28, 0), App.Vector(3.5, 28, 0)), False)
sketch4.addConstraint(Sketcher.Constraint("Tangent", 0, 1, 1, 1))
sketch4.addConstraint(Sketcher.Constraint("Coincident", 1, 2, 2, 1))
sketch4.addConstraint(Sketcher.Constraint("Coincident", 2, 2, 3, 1))
sketch4.addConstraint(Sketcher.Constraint("Coincident", 3, 2, 4, 1))
sketch4.addConstraint(Sketcher.Constraint("Coincident", 4, 2, 5, 1))
sketch4.addConstraint(Sketcher.Constraint("Tangent", 5, 2, 0, 2))
sketch4.addConstraint(Sketcher.Constraint("Coincident", 7, 2, 8, 1))
sketch4.addConstraint(Sketcher.Constraint("Coincident", 8, 2, 9, 1))
sketch4.addConstraint(Sketcher.Constraint("Tangent", 9, 2, 10, 1))
sketch4.addConstraint(Sketcher.Constraint("Tangent", 10, 2, 7, 1))
sketch4.addConstraint(Sketcher.Constraint("Coincident", 11, 2, 12, 1))
sketch4.addConstraint(Sketcher.Constraint("Tangent", 12, 2, 13, 1))
sketch4.addConstraint(Sketcher.Constraint("Tangent", 13, 2, 14, 1))
sketch4.addConstraint(Sketcher.Constraint("Coincident", 14, 2, 11, 1))
sketch4.addConstraint(Sketcher.Constraint("Horizontal", 2))
sketch4.addConstraint(Sketcher.Constraint("Vertical", 3))
sketch4.addConstraint(Sketcher.Constraint("Horizontal", 4))
sketch4.addConstraint(Sketcher.Constraint("Vertical", 8))
sketch4.addConstraint(Sketcher.Constraint("Horizontal", 9))
sketch4.addConstraint(Sketcher.Constraint("Vertical", 11))
sketch4.addConstraint(Sketcher.Constraint("Horizontal", 14))
sketch4.addConstraint(Sketcher.Constraint("Coincident", 6, 3, 0, 3))
sketch4.addConstraint(Sketcher.Constraint("Equal", 10, 13))
sketch4.addConstraint(Sketcher.Constraint("Vertical", 10, 3, 13, 3))
sketch4.addConstraint(Sketcher.Constraint("Vertical", 1, 2, 4, 2))
sketch4.addConstraint(Sketcher.Constraint("Vertical", 0, 1, 5, 2))
sketch4.addConstraint(Sketcher.Constraint("Vertical", 4, 2, 7, 2))
sketch4.addConstraint(Sketcher.Constraint("Vertical", 8, 2, 11, 2))
sketch4.addConstraint(Sketcher.Constraint("Vertical", 10, 2, 12, 2))
sketch4.addConstraint(Sketcher.Constraint("Radius", 0, Q("6 mm")))
sketch4.addConstraint(Sketcher.Constraint("Radius", 10, Q("2 mm")))
sketch4.addConstraint(Sketcher.Constraint("Diameter", 6, Q("2.95 mm")))
sketch4.addConstraint(Sketcher.Constraint("DistanceY", 3, 1, 3, 2, Q("35 mm")))
sketch4.addConstraint(Sketcher.Constraint("DistanceX", 2, 1, 2, 2, Q("21.5 mm")))
sketch4.addConstraint(Sketcher.Constraint("DistanceY", -1, 1, 0, 3, Q("31 mm")))
sketch4.addConstraint(Sketcher.Constraint("DistanceY", -1, 1, 10, 3, Q("36 mm")))
sketch4.addConstraint(Sketcher.Constraint("DistanceY", -1, 1, 13, 3, Q("26 mm")))
sketch4.addConstraint(Sketcher.Constraint("DistanceX", -1, 1, 2, 2, Q("25 mm")))
sketch4.addConstraint(Sketcher.Constraint("DistanceX", -1, 1, 0, 3, Q("17.25 mm")))
sketch4.addConstraint(Sketcher.Constraint("DistanceX", 9, 1, 9, 2, Q("5.260452 mm")))
sketch4.addConstraint(Sketcher.Constraint("DistanceY", 8, 2, 8, 1, Q("7.064442 mm")))
sketch4.setExpression("Constraints[29]", "Params.sketch4_radius")
sketch4.setExpression("Constraints[30]", "Params.sketch4_radius2")
sketch4.setExpression("Constraints[31]", "Params.sketch4_diameter")
sketch4.setExpression("Constraints[32]", "Params.sketch4_height")
sketch4.setExpression("Constraints[33]", "Params.sketch4_width")
pocket2 = body.newObject("PartDesign::Pocket", "Pocket001")
pocket2.Profile = sketch4
pocket2.Type = "ThroughAll"
pocket2.Midplane = True

# Sketch on XY plane
sketch5 = body.newObject("Sketcher::SketchObject", "Sketch004")
sketch5.AttachmentSupport = (doc.getObject("XY_Plane"), [""])
sketch5.MapMode = "FlatFace"
sketch5.AttachmentOffset = App.Placement(App.Vector(0, 0, -9.525), App.Rotation())
add_polygon(sketch5, [(20.173566, 31), (18.600287, 33.725), (15.453728, 33.725), (13.880448, 31), (15.453728, 28.275), (18.600287, 28.275)])  # lines 0-5
sketch5.addGeometry(Part.Circle(App.Vector(17.25, 31, 0), App.Vector(0, 0, 1), 1.475), False)  # 6
sketch5.addConstraint(Sketcher.Constraint("Horizontal", 1))
sketch5.addConstraint(Sketcher.Constraint("Horizontal", 4))
sketch5.addConstraint(Sketcher.Constraint("Parallel", 0, 3))
sketch5.addConstraint(Sketcher.Constraint("Parallel", 2, 5))
sketch5.addConstraint(Sketcher.Constraint("Horizontal", 6, 3, 2, 2))
sketch5.addConstraint(Sketcher.Constraint("Horizontal", 2, 2, 5, 2))
sketch5.addConstraint(Sketcher.Constraint("Vertical", 1, 2, 3, 2))
sketch5.addConstraint(Sketcher.Constraint("Vertical", 0, 2, 4, 2))
sketch5.addConstraint(Sketcher.Constraint("Diameter", 6, Q("2.95 mm")))
sketch5.addConstraint(Sketcher.Constraint("Angle", 0, Q("120 deg")))
sketch5.addConstraint(Sketcher.Constraint("DistanceY", -1, 1, 6, 3, Q("31 mm")))
sketch5.addConstraint(Sketcher.Constraint("DistanceX", -1, 1, 6, 3, Q("17.25 mm")))
sketch5.addConstraint(Sketcher.Constraint("DistanceY", 3, 2, 1, 2, Q("5.45 mm")))
sketch5.addConstraint(Sketcher.Constraint("DistanceX", 1, 2, 1, 1, Q("3.146559 mm")))
sketch5.addConstraint(Sketcher.Constraint("DistanceX", -1, 1, 2, 2, Q("13.880448 mm")))
sketch5.setExpression("Constraints[14]", "Params.sketch5_diameter")
pocket3 = body.newObject("PartDesign::Pocket", "Pocket002")
pocket3.Profile = sketch5
pocket3.Type = "ThroughAll"

doc.recompute()
